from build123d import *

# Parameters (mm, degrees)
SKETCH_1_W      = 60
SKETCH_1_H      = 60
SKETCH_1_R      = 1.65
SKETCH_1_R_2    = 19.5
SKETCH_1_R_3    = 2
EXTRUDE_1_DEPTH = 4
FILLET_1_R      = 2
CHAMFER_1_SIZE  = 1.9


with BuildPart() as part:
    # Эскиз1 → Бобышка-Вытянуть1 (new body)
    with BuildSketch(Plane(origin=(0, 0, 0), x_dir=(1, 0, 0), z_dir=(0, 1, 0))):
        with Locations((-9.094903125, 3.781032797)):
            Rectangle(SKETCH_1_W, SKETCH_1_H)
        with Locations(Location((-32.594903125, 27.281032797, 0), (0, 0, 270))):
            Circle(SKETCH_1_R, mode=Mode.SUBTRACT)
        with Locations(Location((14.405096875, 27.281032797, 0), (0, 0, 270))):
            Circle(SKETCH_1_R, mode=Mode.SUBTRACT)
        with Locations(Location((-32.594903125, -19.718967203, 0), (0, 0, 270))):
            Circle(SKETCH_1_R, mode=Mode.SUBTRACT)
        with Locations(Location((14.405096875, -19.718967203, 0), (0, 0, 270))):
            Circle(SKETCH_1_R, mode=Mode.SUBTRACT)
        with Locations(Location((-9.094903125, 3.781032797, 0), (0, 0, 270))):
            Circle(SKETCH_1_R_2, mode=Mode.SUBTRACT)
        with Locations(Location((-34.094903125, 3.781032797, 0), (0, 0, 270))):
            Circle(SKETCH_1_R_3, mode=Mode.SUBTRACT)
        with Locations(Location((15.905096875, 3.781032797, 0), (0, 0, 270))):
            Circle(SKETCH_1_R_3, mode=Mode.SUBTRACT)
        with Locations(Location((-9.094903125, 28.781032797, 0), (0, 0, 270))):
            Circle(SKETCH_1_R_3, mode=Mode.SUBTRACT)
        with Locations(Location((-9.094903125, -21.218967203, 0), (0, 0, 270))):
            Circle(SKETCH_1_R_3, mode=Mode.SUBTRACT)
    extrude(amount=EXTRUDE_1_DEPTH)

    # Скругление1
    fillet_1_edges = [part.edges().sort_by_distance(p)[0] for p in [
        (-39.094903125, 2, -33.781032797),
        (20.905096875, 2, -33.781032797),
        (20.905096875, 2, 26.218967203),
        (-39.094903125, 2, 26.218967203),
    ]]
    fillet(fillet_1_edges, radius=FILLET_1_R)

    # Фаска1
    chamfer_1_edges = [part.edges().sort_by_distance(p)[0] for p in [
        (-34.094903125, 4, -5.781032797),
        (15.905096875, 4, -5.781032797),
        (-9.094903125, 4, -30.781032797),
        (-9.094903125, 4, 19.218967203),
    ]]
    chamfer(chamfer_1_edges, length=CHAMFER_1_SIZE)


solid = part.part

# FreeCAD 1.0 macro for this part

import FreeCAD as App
import Part
import Sketcher
from FreeCAD import Vector


def edges_at(feature, points):
    """Names of the edges that pass closest to the given points."""
    edges = feature.Shape.Edges
    near = lambda p: min(range(len(edges)), key=lambda i: edges[i].distToShape(Part.Vertex(*p))[0])
    return sorted({f"Edge{near(p) + 1}" for p in points})


def add_polygon(sketch, points):
    """Adds a closed chain of lines whose ends are joined by coincident constraints."""
    first, n = sketch.GeometryCount, len(points)
    for a, b in zip(points, points[1:] + points[:1]):
        sketch.addGeometry(Part.LineSegment(App.Vector(*a, 0), App.Vector(*b, 0)), False)
    for i in range(n):
        sketch.addConstraint(Sketcher.Constraint("Coincident", first + i, 2, first + (i + 1) % n, 1))

doc = App.newDocument("Part")
body = doc.addObject("PartDesign::Body", "Body")

# Sketch on XZ plane
sketch1 = body.newObject("Sketcher::SketchObject", "Sketch")
sketch1.AttachmentSupport = (doc.getObject("XZ_Plane"), [""])
sketch1.MapMode = "FlatFace"
add_polygon(sketch1, [(-39.1, -33.8), (-39.1, 26.2), (20.9, 26.2), (20.9, -33.8)])  # lines 0-3
sketch1.addGeometry(Part.Circle(Vector(-32.6, 19.7, 0), Vector(0, 0, 1), 1.6), False)  # 4
sketch1.addGeometry(Part.Circle(Vector(-9.1, 21.2, 0), Vector(0, 0, 1), 2), False)  # 5
sketch1.addGeometry(Part.Circle(Vector(14.4, 19.7, 0), Vector(0, 0, 1), 1.6), False)  # 6
sketch1.addGeometry(Part.Circle(Vector(-34.1, -3.8, 0), Vector(0, 0, 1), 2), False)  # 7
sketch1.addGeometry(Part.Circle(Vector(-32.6, -27.3, 0), Vector(0, 0, 1), 1.6), False)  # 8
sketch1.addGeometry(Part.Circle(Vector(-9.1, -3.8, 0), Vector(0, 0, 1), 19.5), False)  # 9
sketch1.addGeometry(Part.Circle(Vector(15.9, -3.8, 0), Vector(0, 0, 1), 2), False)  # 10
sketch1.addGeometry(Part.Circle(Vector(-9.1, -28.8, 0), Vector(0, 0, 1), 2), False)  # 11
sketch1.addGeometry(Part.Circle(Vector(14.4, -27.3, 0), Vector(0, 0, 1), 1.6), False)  # 12
sketch1.addConstraint(Sketcher.Constraint("Vertical", 0))
sketch1.addConstraint(Sketcher.Constraint("Horizontal", 1))
sketch1.addConstraint(Sketcher.Constraint("Vertical", 2))
sketch1.addConstraint(Sketcher.Constraint("Horizontal", 3))
sketch1.addConstraint(Sketcher.Constraint("Equal", 4, 6))
sketch1.addConstraint(Sketcher.Constraint("Equal", 5, 7))
sketch1.addConstraint(Sketcher.Constraint("Equal", 6, 8))
sketch1.addConstraint(Sketcher.Constraint("Equal", 7, 10))
sketch1.addConstraint(Sketcher.Constraint("Equal", 10, 11))
sketch1.addConstraint(Sketcher.Constraint("Equal", 8, 12))
sketch1.addConstraint(Sketcher.Constraint("Horizontal", 4, 3, 6, 3))
sketch1.addConstraint(Sketcher.Constraint("Horizontal", 7, 3, 9, 3))
sketch1.addConstraint(Sketcher.Constraint("Horizontal", 9, 3, 10, 3))
sketch1.addConstraint(Sketcher.Constraint("Horizontal", 8, 3, 12, 3))
sketch1.addConstraint(Sketcher.Constraint("Vertical", 4, 3, 8, 3))
sketch1.addConstraint(Sketcher.Constraint("Vertical", 5, 3, 9, 3))
sketch1.addConstraint(Sketcher.Constraint("Vertical", 9, 3, 11, 3))
sketch1.addConstraint(Sketcher.Constraint("Vertical", 6, 3, 12, 3))
sketch1.addConstraint(Sketcher.Constraint("Equal", 3, 0))
sketch1.addConstraint(Sketcher.Constraint("Diameter", 5, 4.0))
sketch1.addConstraint(Sketcher.Constraint("Diameter", 9, 39.0))
sketch1.addConstraint(Sketcher.Constraint("Diameter", 4, 3.3))
sketch1.addConstraint(Sketcher.Constraint("DistanceX", 1, 1, 1, 2, 60.0))
sketch1.addConstraint(Sketcher.Constraint("DistanceX", 4, 3, 6, 3, 47.0))
sketch1.addConstraint(Sketcher.Constraint("DistanceX", 7, 3, 5, 3, 25.0))
sketch1.addConstraint(Sketcher.Constraint("DistanceY", 7, 3, 5, 3, 25.0))
sketch1.addConstraint(Sketcher.Constraint("DistanceY", 8, 3, 4, 3, 47.0))
sketch1.addConstraint(Sketcher.Constraint("DistanceX", 9, 3, 10, 3, 25.0))
sketch1.addConstraint(Sketcher.Constraint("DistanceY", 11, 3, 9, 3, 25.0))
sketch1.addConstraint(Sketcher.Constraint("DistanceX", 0, 2, 5, 3, 30.0))
sketch1.addConstraint(Sketcher.Constraint("DistanceY", 5, 3, 0, 2, 5.0))
sketch1.addConstraint(Sketcher.Constraint("DistanceX", 4, 3, 5, 3, 23.5))
sketch1.addConstraint(Sketcher.Constraint("DistanceY", 4, 3, 5, 3, 1.5))
sketch1.addConstraint(Sketcher.Constraint("DistanceX", 4, 3, -1, 1, 32.594903))
sketch1.addConstraint(Sketcher.Constraint("DistanceY", -1, 1, 4, 3, 19.718967))
pad1 = body.newObject("PartDesign::Pad", "Pad")
pad1.Profile = sketch1
pad1.Length = 4
pad1.Reversed = True
doc.recompute()

fillet = body.newObject("PartDesign::Fillet", "Fillet")
fillet.Base = (pad1, edges_at(pad1, [
    (-39.095, 2, -33.781),
    (20.905, 2, -33.781),
    (20.905, 2, 26.219),
    (-39.095, 2, 26.219),
]))
fillet.Radius = 2
doc.recompute()

chamfer = body.newObject("PartDesign::Chamfer", "Chamfer")
chamfer.Base = (fillet, edges_at(fillet, [
    (-34.095, 4, -5.781),
    (15.905, 4, -5.781),
    (-9.095, 4, -30.781),
    (-9.095, 4, 19.219),
]))
chamfer.Size = 1.9

doc.recompute()
